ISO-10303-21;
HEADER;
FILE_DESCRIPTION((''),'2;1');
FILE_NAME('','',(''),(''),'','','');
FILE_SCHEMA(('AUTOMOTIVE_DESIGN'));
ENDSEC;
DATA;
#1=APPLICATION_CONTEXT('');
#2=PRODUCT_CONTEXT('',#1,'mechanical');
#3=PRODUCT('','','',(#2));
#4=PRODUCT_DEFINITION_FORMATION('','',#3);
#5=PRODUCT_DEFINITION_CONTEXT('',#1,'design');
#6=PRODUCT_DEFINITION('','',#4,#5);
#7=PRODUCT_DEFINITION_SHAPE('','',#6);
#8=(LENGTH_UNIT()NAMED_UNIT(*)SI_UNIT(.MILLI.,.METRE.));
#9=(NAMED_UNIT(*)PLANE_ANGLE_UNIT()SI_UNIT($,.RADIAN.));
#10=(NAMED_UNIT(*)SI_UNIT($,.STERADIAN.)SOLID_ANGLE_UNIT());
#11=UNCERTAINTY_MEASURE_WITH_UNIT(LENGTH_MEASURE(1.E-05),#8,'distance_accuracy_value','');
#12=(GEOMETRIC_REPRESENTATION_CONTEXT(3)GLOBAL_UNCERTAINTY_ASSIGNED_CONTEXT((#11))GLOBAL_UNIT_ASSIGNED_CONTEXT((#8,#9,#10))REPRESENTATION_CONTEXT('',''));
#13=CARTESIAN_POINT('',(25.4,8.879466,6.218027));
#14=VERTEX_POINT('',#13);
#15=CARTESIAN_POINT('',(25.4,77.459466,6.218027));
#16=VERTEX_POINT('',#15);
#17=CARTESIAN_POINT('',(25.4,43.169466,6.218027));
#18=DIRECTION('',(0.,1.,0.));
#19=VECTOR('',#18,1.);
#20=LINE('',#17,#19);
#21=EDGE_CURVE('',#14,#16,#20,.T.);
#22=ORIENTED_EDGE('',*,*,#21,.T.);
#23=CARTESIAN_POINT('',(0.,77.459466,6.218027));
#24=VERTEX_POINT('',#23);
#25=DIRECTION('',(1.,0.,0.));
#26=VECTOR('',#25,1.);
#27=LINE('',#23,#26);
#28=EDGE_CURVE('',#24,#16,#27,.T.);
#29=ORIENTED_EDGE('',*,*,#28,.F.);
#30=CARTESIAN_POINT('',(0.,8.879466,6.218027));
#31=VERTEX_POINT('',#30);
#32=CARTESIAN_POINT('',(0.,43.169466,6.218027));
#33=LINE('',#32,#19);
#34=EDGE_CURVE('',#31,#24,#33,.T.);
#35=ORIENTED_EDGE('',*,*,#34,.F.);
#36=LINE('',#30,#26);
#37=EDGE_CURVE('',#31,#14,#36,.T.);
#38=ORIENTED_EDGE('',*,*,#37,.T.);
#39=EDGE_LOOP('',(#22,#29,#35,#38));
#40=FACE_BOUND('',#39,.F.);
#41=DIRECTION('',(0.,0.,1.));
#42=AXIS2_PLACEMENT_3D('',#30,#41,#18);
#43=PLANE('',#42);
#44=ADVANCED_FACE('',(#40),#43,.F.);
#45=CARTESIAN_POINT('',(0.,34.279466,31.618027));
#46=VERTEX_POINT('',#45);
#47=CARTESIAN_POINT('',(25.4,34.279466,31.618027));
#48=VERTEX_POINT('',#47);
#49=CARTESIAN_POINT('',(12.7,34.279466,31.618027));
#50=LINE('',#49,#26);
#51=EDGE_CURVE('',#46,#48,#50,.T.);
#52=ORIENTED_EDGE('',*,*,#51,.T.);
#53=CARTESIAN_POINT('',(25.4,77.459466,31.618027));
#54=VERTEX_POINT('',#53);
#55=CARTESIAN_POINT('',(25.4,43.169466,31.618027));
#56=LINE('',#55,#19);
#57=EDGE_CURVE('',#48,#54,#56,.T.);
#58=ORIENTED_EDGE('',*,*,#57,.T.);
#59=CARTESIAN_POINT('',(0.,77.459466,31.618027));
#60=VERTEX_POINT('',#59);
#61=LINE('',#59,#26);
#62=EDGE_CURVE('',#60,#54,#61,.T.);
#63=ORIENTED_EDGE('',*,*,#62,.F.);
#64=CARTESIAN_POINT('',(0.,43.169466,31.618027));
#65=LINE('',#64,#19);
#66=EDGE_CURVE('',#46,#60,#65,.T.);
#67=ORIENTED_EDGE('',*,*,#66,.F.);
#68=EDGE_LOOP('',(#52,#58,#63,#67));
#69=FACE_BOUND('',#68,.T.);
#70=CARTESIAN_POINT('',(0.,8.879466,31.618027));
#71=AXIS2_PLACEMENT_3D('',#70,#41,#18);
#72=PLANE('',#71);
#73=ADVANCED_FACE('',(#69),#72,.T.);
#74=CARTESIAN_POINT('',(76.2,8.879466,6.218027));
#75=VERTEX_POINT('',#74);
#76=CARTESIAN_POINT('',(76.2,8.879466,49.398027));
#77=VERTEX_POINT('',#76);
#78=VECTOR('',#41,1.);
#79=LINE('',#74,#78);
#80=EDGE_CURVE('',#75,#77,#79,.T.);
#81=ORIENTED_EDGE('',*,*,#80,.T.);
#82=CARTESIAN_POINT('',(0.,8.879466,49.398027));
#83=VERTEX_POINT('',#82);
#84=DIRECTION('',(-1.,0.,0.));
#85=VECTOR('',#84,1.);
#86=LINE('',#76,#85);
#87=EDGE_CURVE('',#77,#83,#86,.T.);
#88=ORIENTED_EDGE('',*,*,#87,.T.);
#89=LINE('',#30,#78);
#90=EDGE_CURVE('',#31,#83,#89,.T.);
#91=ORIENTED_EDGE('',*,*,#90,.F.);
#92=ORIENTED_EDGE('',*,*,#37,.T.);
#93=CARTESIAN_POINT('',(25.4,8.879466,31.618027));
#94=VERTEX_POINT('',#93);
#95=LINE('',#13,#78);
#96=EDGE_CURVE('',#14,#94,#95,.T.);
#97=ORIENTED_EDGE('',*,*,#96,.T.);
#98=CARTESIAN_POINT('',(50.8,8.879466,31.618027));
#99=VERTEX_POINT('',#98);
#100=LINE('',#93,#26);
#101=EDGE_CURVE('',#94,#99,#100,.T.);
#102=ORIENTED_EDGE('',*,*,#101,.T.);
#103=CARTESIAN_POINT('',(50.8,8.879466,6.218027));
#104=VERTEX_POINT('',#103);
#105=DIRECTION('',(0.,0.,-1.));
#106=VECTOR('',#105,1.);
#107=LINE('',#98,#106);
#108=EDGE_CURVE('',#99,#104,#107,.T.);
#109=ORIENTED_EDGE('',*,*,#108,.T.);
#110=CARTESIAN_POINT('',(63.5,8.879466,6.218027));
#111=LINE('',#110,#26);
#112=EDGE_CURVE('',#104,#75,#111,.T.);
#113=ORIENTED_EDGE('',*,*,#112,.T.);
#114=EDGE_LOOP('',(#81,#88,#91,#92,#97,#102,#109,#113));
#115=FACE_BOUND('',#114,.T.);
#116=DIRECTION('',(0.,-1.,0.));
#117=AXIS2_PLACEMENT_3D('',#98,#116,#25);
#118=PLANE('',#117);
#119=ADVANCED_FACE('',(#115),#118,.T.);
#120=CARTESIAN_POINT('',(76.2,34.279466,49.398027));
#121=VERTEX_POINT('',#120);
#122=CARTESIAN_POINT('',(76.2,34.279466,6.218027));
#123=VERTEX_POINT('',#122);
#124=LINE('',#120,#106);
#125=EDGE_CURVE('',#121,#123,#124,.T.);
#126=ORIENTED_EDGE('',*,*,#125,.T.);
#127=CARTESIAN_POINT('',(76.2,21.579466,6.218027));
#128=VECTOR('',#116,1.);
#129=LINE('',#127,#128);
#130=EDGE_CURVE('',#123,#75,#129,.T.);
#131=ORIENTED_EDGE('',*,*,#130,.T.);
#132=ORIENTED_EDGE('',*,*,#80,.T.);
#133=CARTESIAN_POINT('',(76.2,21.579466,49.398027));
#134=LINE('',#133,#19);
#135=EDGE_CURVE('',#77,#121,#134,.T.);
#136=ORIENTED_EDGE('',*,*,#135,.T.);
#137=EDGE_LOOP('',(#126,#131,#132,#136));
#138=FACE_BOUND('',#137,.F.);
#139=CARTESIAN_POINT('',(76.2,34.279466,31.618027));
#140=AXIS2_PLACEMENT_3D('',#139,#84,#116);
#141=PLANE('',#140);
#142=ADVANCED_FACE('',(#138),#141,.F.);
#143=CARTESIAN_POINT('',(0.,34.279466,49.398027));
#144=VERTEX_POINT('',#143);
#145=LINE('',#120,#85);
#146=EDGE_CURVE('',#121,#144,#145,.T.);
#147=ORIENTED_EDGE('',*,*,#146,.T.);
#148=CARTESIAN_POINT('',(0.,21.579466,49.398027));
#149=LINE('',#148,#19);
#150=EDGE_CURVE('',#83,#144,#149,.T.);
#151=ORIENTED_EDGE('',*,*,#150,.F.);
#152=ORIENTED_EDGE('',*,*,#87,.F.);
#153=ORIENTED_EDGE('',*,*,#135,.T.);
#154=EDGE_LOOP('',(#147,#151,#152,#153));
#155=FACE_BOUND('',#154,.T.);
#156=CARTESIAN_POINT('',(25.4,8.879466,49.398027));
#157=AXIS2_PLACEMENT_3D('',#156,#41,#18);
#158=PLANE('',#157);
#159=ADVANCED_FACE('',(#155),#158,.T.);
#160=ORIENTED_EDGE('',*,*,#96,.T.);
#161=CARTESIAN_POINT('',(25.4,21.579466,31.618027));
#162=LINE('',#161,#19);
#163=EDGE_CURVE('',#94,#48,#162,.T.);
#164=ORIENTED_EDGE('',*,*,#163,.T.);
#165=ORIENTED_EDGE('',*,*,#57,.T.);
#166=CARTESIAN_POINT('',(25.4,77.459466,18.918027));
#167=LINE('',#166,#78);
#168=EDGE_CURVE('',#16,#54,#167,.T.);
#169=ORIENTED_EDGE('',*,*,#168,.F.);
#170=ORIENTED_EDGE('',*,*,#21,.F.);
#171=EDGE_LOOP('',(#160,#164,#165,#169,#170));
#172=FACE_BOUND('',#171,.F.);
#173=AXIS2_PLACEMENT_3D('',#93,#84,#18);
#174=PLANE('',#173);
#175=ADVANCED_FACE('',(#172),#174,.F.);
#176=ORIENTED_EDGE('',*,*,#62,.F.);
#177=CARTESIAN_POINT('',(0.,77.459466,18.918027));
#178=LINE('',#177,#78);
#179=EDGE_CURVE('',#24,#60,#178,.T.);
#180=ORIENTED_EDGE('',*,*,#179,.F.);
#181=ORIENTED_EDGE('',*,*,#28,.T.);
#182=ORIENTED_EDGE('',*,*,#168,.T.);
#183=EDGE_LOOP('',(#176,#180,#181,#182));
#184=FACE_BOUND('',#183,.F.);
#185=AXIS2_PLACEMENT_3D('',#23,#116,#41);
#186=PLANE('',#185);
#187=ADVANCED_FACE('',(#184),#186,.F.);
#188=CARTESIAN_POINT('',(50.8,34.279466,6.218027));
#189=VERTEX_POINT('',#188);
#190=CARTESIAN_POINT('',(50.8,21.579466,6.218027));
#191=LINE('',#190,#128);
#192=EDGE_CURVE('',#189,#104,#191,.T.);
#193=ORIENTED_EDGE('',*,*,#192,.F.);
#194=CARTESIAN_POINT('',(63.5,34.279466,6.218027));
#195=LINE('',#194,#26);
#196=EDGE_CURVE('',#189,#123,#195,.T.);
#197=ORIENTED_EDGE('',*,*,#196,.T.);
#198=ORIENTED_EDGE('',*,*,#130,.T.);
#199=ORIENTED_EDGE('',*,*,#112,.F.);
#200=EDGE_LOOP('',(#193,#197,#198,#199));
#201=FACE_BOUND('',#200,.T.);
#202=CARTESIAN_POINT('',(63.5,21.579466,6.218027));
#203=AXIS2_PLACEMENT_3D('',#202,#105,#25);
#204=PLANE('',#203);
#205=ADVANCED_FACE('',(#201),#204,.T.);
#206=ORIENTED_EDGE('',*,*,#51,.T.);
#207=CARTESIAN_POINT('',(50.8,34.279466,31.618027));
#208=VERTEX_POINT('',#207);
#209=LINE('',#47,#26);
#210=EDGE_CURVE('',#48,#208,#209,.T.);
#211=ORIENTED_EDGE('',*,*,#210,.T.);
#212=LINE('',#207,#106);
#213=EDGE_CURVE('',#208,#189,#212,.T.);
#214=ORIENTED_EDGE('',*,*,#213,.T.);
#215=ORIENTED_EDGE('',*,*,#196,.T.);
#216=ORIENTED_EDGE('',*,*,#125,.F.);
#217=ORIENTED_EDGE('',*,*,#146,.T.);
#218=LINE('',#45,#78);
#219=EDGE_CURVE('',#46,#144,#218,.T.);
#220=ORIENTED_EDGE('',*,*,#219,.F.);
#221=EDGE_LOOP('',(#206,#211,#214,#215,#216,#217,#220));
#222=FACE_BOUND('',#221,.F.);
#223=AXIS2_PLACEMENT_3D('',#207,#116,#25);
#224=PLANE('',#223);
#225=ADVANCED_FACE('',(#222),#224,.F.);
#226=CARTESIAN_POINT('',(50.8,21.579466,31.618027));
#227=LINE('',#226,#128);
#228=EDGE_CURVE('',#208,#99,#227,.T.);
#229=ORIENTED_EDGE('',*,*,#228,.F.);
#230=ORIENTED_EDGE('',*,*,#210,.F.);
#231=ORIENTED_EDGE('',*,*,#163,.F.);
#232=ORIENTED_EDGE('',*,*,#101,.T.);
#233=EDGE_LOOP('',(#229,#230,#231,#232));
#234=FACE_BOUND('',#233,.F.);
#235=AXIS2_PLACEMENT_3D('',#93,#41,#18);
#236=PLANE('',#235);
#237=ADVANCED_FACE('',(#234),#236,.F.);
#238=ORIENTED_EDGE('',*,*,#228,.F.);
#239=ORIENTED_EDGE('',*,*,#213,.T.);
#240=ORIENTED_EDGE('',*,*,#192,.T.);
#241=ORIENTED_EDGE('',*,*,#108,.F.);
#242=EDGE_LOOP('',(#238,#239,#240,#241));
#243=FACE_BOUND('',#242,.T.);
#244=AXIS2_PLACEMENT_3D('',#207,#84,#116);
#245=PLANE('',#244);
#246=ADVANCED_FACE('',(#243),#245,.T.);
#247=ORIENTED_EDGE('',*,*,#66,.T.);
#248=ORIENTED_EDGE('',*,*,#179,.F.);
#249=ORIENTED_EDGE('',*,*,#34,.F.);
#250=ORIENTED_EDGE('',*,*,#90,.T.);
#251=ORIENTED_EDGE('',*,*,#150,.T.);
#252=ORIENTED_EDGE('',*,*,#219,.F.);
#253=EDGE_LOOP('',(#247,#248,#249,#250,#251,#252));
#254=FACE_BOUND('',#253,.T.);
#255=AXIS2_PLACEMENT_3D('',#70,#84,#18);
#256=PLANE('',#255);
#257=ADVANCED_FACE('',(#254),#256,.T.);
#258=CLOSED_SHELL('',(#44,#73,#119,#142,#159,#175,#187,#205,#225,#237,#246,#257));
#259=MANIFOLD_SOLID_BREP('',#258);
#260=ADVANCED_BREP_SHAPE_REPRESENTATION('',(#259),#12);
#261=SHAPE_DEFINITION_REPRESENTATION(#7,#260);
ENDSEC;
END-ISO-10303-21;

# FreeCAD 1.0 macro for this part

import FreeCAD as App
import Part
import Sketcher
from FreeCAD import Vector
Q = App.Units.Quantity

doc = App.newDocument("Part")
body = doc.addObject("PartDesign::Body", "Body")

# Sketch on YZ plane
sketch1 = doc.addObject("Sketcher::SketchObject", "Sketch")
body.addObject(sketch1)
sketch1.AttachmentSupport = (doc.YZ_Plane, [""])
sketch1.MapMode = "FlatFace"
sketch1.addGeometry(Part.LineSegment(Vector(9, 32, 0), Vector(9, 6, 0)), False)
sketch1.addGeometry(Part.LineSegment(Vector(9, 6, 0), Vector(77, 6, 0)), False)
sketch1.addGeometry(Part.LineSegment(Vector(77, 6, 0), Vector(77, 32, 0)), False)
sketch1.addGeometry(Part.LineSegment(Vector(77, 32, 0), Vector(9, 32, 0)), False)
sketch1.addConstraint(Sketcher.Constraint("Coincident", 0, 2, 1, 1))
sketch1.addConstraint(Sketcher.Constraint("Coincident", 1, 2, 2, 1))
sketch1.addConstraint(Sketcher.Constraint("Coincident", 2, 2, 3, 1))
sketch1.addConstraint(Sketcher.Constraint("Coincident", 3, 2, 0, 1))
sketch1.addConstraint(Sketcher.Constraint("Vertical", 0))
sketch1.addConstraint(Sketcher.Constraint("Horizontal", 1))
sketch1.addConstraint(Sketcher.Constraint("Vertical", 2))
sketch1.addConstraint(Sketcher.Constraint("Horizontal", 3))
sketch1.addConstraint(Sketcher.Constraint("DistanceY", 0, 2, 0, 1, Q("1 in")))
sketch1.addConstraint(Sketcher.Constraint("DistanceX", 1, 1, 1, 2, Q("2.7 in")))
sketch1.addConstraint(Sketcher.Constraint("DistanceX", -1, 1, 0, 2, 8.879466))
sketch1.addConstraint(Sketcher.Constraint("DistanceY", -1, 1, 0, 2, 6.218027))
pad1 = doc.addObject("PartDesign::Pad", "Pad")
body.addObject(pad1)
pad1.Profile = sketch1
pad1.Length = Q("1 in")

# Sketch on XY plane
sketch2 = doc.addObject("Sketcher::SketchObject", "Sketch001")
body.addObject(sketch2)
sketch2.AttachmentSupport = (doc.XY_Plane, [""])
sketch2.MapMode = "FlatFace"
sketch2.AttachmentOffset = App.Placement(Vector(0, 0, 31.618027), App.Rotation())
sketch2.addGeometry(Part.LineSegment(Vector(0, 34, 0), Vector(0, 9, 0)), False)
sketch2.addGeometry(Part.LineSegment(Vector(0, 9, 0), Vector(25, 9, 0)), False)
sketch2.addGeometry(Part.LineSegment(Vector(25, 9, 0), Vector(25, 34, 0)), False)
sketch2.addGeometry(Part.LineSegment(Vector(25, 34, 0), Vector(0, 34, 0)), False)
sketch2.addConstraint(Sketcher.Constraint("Coincident", 0, 2, 1, 1))
sketch2.addConstraint(Sketcher.Constraint("Coincident", 1, 2, 2, 1))
sketch2.addConstraint(Sketcher.Constraint("Coincident", 2, 2, 3, 1))
sketch2.addConstraint(Sketcher.Constraint("Coincident", 3, 2, 0, 1))
sketch2.addConstraint(Sketcher.Constraint("Vertical", 0))
sketch2.addConstraint(Sketcher.Constraint("Horizontal", 1))
sketch2.addConstraint(Sketcher.Constraint("Vertical", 2))
sketch2.addConstraint(Sketcher.Constraint("Horizontal", 3))
sketch2.addConstraint(Sketcher.Constraint("PointOnObject", 0, 2, -2))
sketch2.addConstraint(Sketcher.Constraint("Equal", 3, 0))
sketch2.addConstraint(Sketcher.Constraint("DistanceX", 1, 1, 1, 2, Q("1 in")))
sketch2.addConstraint(Sketcher.Constraint("DistanceY", -1, 1, 0, 2, 8.879466))
pad2 = doc.addObject("PartDesign::Pad", "Pad001")
body.addObject(pad2)
pad2.Profile = sketch2
pad2.Length = Q("0.7 in")

# Sketch on YZ plane
sketch3 = doc.addObject("Sketcher::SketchObject", "Sketch002")
body.addObject(sketch3)
sketch3.AttachmentSupport = (doc.YZ_Plane, [""])
sketch3.MapMode = "FlatFace"
sketch3.AttachmentOffset = App.Placement(Vector(0, 0, 1 * 25.4), App.Rotation())
sketch3.addGeometry(Part.LineSegment(Vector(9, 49, 0), Vector(9, 32, 0)), False)
sketch3.addGeometry(Part.LineSegment(Vector(9, 32, 0), Vector(34, 32, 0)), False)
sketch3.addGeometry(Part.LineSegment(Vector(34, 32, 0), Vector(34, 49, 0)), False)
sketch3.addGeometry(Part.LineSegment(Vector(34, 49, 0), Vector(9, 49, 0)), False)
sketch3.addConstraint(Sketcher.Constraint("Coincident", 0, 2, 1, 1))
sketch3.addConstraint(Sketcher.Constraint("Coincident", 1, 2, 2, 1))
sketch3.addConstraint(Sketcher.Constraint("Coincident", 2, 2, 3, 1))
sketch3.addConstraint(Sketcher.Constraint("Coincident", 3, 2, 0, 1))
sketch3.addConstraint(Sketcher.Constraint("Vertical", 0))
sketch3.addConstraint(Sketcher.Constraint("Horizontal", 1))
sketch3.addConstraint(Sketcher.Constraint("Vertical", 2))
sketch3.addConstraint(Sketcher.Constraint("Horizontal", 3))
sketch3.addConstraint(Sketcher.Constraint("DistanceX", 1, 1, 1, 2, Q("1 in")))
sketch3.addConstraint(Sketcher.Constraint("DistanceY", 0, 2, 0, 1, Q("0.7 in")))
sketch3.addConstraint(Sketcher.Constraint("DistanceX", -1, 1, 0, 2, 8.879466))
sketch3.addConstraint(Sketcher.Constraint("DistanceY", -1, 1, 0, 2, 31.618027))
pad3 = doc.addObject("PartDesign::Pad", "Pad002")
body.addObject(pad3)
pad3.Profile = sketch3
pad3.Length = Q("2 in")

# Sketch on XY plane
sketch4 = doc.addObject("Sketcher::SketchObject", "Sketch003")
body.addObject(sketch4)
sketch4.AttachmentSupport = (doc.XY_Plane, [""])
sketch4.MapMode = "FlatFace"
sketch4.AttachmentOffset = App.Placement(Vector(0, 0, 31.618027), App.Rotation())
sketch4.addGeometry(Part.LineSegment(Vector(51, 9, 0), Vector(51, 34, 0)), False)
sketch4.addGeometry(Part.LineSegment(Vector(51, 34, 0), Vector(76, 34, 0)), False)
sketch4.addGeometry(Part.LineSegment(Vector(76, 34, 0), Vector(76, 9, 0)), False)
sketch4.addGeometry(Part.LineSegment(Vector(76, 9, 0), Vector(51, 9, 0)), False)
sketch4.addConstraint(Sketcher.Constraint("Coincident", 0, 2, 1, 1))
sketch4.addConstraint(Sketcher.Constraint("Coincident", 1, 2, 2, 1))
sketch4.addConstraint(Sketcher.Constraint("Coincident", 2, 2, 3, 1))
sketch4.addConstraint(Sketcher.Constraint("Coincident", 3, 2, 0, 1))
sketch4.addConstraint(Sketcher.Constraint("Vertical", 0))
sketch4.addConstraint(Sketcher.Constraint("Horizontal", 1))
sketch4.addConstraint(Sketcher.Constraint("Vertical", 2))
sketch4.addConstraint(Sketcher.Constraint("Horizontal", 3))
sketch4.addConstraint(Sketcher.Constraint("Equal", 3, 0))
sketch4.addConstraint(Sketcher.Constraint("DistanceX", 1, 1, 1, 2, Q("1 in")))
sketch4.addConstraint(Sketcher.Constraint("DistanceX", -1, 1, 0, 2, Q("2 in")))
sketch4.addConstraint(Sketcher.Constraint("DistanceY", -1, 1, 0, 2, 34.279466))
pad4 = doc.addObject("PartDesign::Pad", "Pad003")
body.addObject(pad4)
pad4.Profile = sketch4
pad4.Length = Q("1 in")
pad4.Reversed = True

doc.recompute()
